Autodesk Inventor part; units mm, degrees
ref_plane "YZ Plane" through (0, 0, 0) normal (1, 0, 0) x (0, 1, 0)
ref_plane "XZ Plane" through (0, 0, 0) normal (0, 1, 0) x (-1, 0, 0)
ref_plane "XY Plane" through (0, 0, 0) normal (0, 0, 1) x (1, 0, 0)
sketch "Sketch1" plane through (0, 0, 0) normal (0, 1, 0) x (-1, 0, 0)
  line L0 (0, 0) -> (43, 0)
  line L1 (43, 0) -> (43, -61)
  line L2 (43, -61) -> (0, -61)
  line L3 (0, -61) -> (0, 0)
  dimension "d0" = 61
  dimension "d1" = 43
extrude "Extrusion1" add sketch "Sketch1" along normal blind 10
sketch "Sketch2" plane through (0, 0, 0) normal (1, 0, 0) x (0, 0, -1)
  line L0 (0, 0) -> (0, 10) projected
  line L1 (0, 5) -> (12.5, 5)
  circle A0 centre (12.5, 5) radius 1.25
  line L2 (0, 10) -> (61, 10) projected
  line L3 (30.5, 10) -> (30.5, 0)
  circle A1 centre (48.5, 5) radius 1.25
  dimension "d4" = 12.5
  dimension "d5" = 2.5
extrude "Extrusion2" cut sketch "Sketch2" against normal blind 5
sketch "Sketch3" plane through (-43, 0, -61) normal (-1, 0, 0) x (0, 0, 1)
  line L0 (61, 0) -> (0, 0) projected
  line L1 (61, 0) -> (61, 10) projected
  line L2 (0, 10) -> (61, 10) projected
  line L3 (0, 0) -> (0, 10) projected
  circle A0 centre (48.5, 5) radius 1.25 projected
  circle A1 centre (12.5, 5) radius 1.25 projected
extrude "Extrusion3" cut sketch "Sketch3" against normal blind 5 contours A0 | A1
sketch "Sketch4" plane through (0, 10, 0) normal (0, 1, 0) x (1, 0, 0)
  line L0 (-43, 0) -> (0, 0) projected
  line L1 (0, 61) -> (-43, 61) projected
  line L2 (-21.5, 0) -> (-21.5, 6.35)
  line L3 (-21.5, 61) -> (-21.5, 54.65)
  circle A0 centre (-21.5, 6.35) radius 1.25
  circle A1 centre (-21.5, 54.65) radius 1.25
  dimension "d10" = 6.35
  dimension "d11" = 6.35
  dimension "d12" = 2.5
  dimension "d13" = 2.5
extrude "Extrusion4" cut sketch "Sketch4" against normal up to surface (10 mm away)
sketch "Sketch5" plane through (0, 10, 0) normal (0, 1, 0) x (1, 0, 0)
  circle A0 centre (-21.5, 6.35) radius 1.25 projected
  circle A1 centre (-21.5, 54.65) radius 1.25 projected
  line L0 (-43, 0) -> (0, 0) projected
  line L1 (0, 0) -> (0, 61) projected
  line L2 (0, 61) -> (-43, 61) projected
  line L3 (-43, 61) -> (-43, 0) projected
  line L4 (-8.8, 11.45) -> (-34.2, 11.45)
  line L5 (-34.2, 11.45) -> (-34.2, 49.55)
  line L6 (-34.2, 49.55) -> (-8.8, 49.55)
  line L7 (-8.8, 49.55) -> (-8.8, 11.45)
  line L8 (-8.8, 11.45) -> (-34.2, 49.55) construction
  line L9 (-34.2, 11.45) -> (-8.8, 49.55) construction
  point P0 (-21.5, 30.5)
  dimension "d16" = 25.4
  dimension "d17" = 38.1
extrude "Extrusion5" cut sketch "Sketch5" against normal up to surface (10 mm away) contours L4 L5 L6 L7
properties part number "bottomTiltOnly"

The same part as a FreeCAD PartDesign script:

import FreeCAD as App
import Part
import Sketcher

V = App.Vector
Q = App.Units.Quantity


def add_polygon(sketch, points):
    """Adds a closed chain of lines whose ends are joined by coincident constraints."""
    first, n = sketch.GeometryCount, len(points)
    for a, b in zip(points, points[1:] + points[:1]):
        sketch.addGeometry(Part.LineSegment(App.Vector(*a, 0), App.Vector(*b, 0)), False)
    for i in range(n):
        sketch.addConstraint(Sketcher.Constraint("Coincident", first + i, 2, first + (i + 1) % n, 1))

doc = App.newDocument("Part")
body = doc.addObject("PartDesign::Body", "Body")

sketch1 = doc.addObject("Sketcher::SketchObject", "Sketch")
body.addObject(sketch1)
sketch1.AttachmentSupport = (doc.XZ_Plane, [""])
sketch1.MapMode = "FlatFace"
add_polygon(sketch1, [(-43, 0), (0, 0), (0, -61), (-43, -61)])
sketch1.addConstraint(Sketcher.Constraint("Horizontal", 0))
sketch1.addConstraint(Sketcher.Constraint("Vertical", 1))
sketch1.addConstraint(Sketcher.Constraint("Horizontal", 2))
sketch1.addConstraint(Sketcher.Constraint("Vertical", 3))
sketch1.addConstraint(Sketcher.Constraint("Coincident", 0, 2, -1, 1))
sketch1.addConstraint(Sketcher.Constraint("DistanceX", 0, 1, 0, 2, Q("43 mm")))
sketch1.addConstraint(Sketcher.Constraint("DistanceY", 1, 2, 1, 1, Q("61 mm")))
pad1 = doc.addObject("PartDesign::Pad", "Pad")
body.addObject(pad1)
pad1.Profile = sketch1
pad1.Length = 10
pad1.Reversed = True

sketch2 = doc.addObject("Sketcher::SketchObject", "Sketch001")
body.addObject(sketch2)
sketch2.AttachmentSupport = (doc.YZ_Plane, [""])
sketch2.MapMode = "FlatFace"
sketch2.addGeometry(Part.Circle(V(5, -12.5, 0), V(0, 0, 1), 1.2), False)
sketch2.addGeometry(Part.Circle(V(5, -48.5, 0), V(0, 0, 1), 1.2), False)
sketch2.addConstraint(Sketcher.Constraint("Equal", 0, 1))
sketch2.addConstraint(Sketcher.Constraint("Vertical", 0, 3, 1, 3))
sketch2.addConstraint(Sketcher.Constraint("Diameter", 0, Q("2.5 mm")))
sketch2.addConstraint(Sketcher.Constraint("DistanceY", 0, 3, -1, 1, Q("12.5 mm")))
sketch2.addConstraint(Sketcher.Constraint("DistanceX", -1, 1, 0, 3, Q("5 mm")))
sketch2.addConstraint(Sketcher.Constraint("DistanceY", 1, 3, 0, 3, Q("36 mm")))
pocket1 = doc.addObject("PartDesign::Pocket", "Pocket")
body.addObject(pocket1)
pocket1.Profile = sketch2
pocket1.Length = 5

sketch3 = doc.addObject("Sketcher::SketchObject", "Sketch002")
body.addObject(sketch3)
sketch3.AttachmentSupport = (doc.YZ_Plane, [""])
sketch3.MapMode = "FlatFace"
sketch3.AttachmentOffset = App.Placement(V(0, 0, -43), App.Rotation())
sketch3.addGeometry(Part.Circle(V(5, -12.5, 0), V(0, 0, 1), 1.2), False)
sketch3.addGeometry(Part.Circle(V(5, -48.5, 0), V(0, 0, 1), 1.2), False)
sketch3.addConstraint(Sketcher.Constraint("Equal", 0, 1))
sketch3.addConstraint(Sketcher.Constraint("Vertical", 0, 3, 1, 3))
sketch3.addConstraint(Sketcher.Constraint("Diameter", 0, Q("2.5 mm")))
sketch3.addConstraint(Sketcher.Constraint("DistanceX", -1, 1, 0, 3, Q("5 mm")))
sketch3.addConstraint(Sketcher.Constraint("DistanceY", 1, 3, 0, 3, Q("36 mm")))
sketch3.addConstraint(Sketcher.Constraint("DistanceY", 0, 3, -1, 1, Q("12.5 mm")))
pocket2 = doc.addObject("PartDesign::Pocket", "Pocket001")
body.addObject(pocket2)
pocket2.Profile = sketch3
pocket2.Length = 5
pocket2.Reversed = True

sketch4 = doc.addObject("Sketcher::SketchObject", "Sketch003")
body.addObject(sketch4)
sketch4.AttachmentSupport = (doc.XZ_Plane, [""])
sketch4.MapMode = "FlatFace"
sketch4.AttachmentOffset = App.Placement(V(0, 0, -10), App.Rotation())
sketch4.addGeometry(Part.Circle(V(-21.5, -6.3, 0), V(0, 0, 1), 1.2), False)
sketch4.addGeometry(Part.Circle(V(-21.5, -54.6, 0), V(0, 0, 1), 1.2), False)
sketch4.addConstraint(Sketcher.Constraint("Equal", 0, 1))
sketch4.addConstraint(Sketcher.Constraint("Vertical", 0, 3, 1, 3))
sketch4.addConstraint(Sketcher.Constraint("Diameter", 0, Q("2.5 mm")))
sketch4.addConstraint(Sketcher.Constraint("DistanceY", 0, 3, -1, 1, Q("6.35 mm")))
sketch4.addConstraint(Sketcher.Constraint("DistanceX", 0, 3, -1, 1, Q("21.5 mm")))
sketch4.addConstraint(Sketcher.Constraint("DistanceY", 1, 3, 0, 3, Q("48.3 mm")))
pocket3 = doc.addObject("PartDesign::Pocket", "Pocket002")
body.addObject(pocket3)
pocket3.Profile = sketch4
pocket3.Length = 10
pocket3.Reversed = True

sketch5 = doc.addObject("Sketcher::SketchObject", "Sketch004")
body.addObject(sketch5)
sketch5.AttachmentSupport = (doc.XZ_Plane, [""])
sketch5.MapMode = "FlatFace"
sketch5.AttachmentOffset = App.Placement(V(0, 0, -10), App.Rotation())
add_polygon(sketch5, [(-34, -11), (-9, -11), (-9, -50), (-34, -50)])
sketch5.addConstraint(Sketcher.Constraint("Horizontal", 0))
sketch5.addConstraint(Sketcher.Constraint("Vertical", 1))
sketch5.addConstraint(Sketcher.Constraint("Horizontal", 2))
sketch5.addConstraint(Sketcher.Constraint("Vertical", 3))
sketch5.addConstraint(Sketcher.Constraint("DistanceX", 0, 1, 0, 2, Q("25.4 mm")))
sketch5.addConstraint(Sketcher.Constraint("DistanceY", 1, 2, 1, 1, Q("38.1 mm")))
sketch5.addConstraint(Sketcher.Constraint("DistanceX", 0, 2, -1, 1, Q("8.8 mm")))
sketch5.addConstraint(Sketcher.Constraint("DistanceY", 0, 2, -1, 1, Q("11.45 mm")))
pocket4 = doc.addObject("PartDesign::Pocket", "Pocket003")
body.addObject(pocket4)
pocket4.Profile = sketch5
pocket4.Length = 10
pocket4.Reversed = True

doc.recompute()
